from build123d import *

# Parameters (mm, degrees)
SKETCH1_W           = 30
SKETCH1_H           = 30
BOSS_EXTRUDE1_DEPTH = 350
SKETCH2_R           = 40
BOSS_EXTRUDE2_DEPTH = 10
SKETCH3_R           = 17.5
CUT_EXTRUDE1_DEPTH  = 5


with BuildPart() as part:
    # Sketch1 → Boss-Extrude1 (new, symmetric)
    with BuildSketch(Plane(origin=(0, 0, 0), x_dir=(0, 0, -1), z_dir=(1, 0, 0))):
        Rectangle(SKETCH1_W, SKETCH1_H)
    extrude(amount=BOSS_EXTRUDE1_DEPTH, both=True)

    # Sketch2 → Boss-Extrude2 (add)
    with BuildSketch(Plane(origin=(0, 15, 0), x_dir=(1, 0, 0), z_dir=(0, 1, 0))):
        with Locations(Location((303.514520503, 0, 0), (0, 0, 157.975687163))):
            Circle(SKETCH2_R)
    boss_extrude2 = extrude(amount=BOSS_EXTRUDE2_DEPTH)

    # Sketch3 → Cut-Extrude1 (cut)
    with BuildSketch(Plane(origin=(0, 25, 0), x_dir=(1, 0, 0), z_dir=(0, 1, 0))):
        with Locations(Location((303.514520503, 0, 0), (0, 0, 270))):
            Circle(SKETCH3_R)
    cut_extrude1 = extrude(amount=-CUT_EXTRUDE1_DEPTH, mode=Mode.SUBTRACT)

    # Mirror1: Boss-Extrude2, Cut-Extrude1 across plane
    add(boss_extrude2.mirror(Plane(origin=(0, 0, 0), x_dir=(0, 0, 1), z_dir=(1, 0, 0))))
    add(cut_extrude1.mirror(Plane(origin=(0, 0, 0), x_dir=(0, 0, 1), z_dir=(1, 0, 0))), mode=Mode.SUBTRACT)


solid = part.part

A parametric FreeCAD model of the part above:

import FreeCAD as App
import Part
import Sketcher
Q = App.Units.Quantity

doc = App.newDocument("Part")
params = doc.addObject("Spreadsheet::Sheet", "Params")
for row, (alias, value) in enumerate([
    ("sketch1_width", "30 mm"),
    ("pad1_length", "700 mm"),
    ("sketch2_diameter", "80 mm"),
    ("pad2_length", "10 mm"),
    ("sketch3_diameter", "35 mm"),
    ("pocket1_length", "5 mm"),
], start=1):
    params.set(f"A{row}", alias)
    params.set(f"B{row}", "=" + value)
    params.setAlias(f"B{row}", alias)

body = doc.addObject("PartDesign::Body", "Body")

# Sketch on YZ plane
sketch1 = doc.addObject("Sketcher::SketchObject", "Sketch")
body.addObject(sketch1)
sketch1.AttachmentSupport = (doc.YZ_Plane, [""])
sketch1.MapMode = "FlatFace"
sketch1.addGeometry(Part.LineSegment(App.Vector(15, 15, 0), App.Vector(-15, 15, 0)), False)
sketch1.addGeometry(Part.LineSegment(App.Vector(-15, 15, 0), App.Vector(-15, -15, 0)), False)
sketch1.addGeometry(Part.LineSegment(App.Vector(-15, -15, 0), App.Vector(15, -15, 0)), False)
sketch1.addGeometry(Part.LineSegment(App.Vector(15, -15, 0), App.Vector(15, 15, 0)), False)
sketch1.addConstraint(Sketcher.Constraint("Coincident", 0, 2, 1, 1))
sketch1.addConstraint(Sketcher.Constraint("Coincident", 1, 2, 2, 1))
sketch1.addConstraint(Sketcher.Constraint("Coincident", 2, 2, 3, 1))
sketch1.addConstraint(Sketcher.Constraint("Coincident", 3, 2, 0, 1))
sketch1.addConstraint(Sketcher.Constraint("Horizontal", 0))
sketch1.addConstraint(Sketcher.Constraint("Vertical", 1))
sketch1.addConstraint(Sketcher.Constraint("Horizontal", 2))
sketch1.addConstraint(Sketcher.Constraint("Vertical", 3))
sketch1.addConstraint(Sketcher.Constraint("Symmetric", 0, 2, 2, 2, -1, 1))
sketch1.addConstraint(Sketcher.Constraint("Equal", 2, 1))
sketch1.addConstraint(Sketcher.Constraint("DistanceX", 0, 2, 0, 1, Q("30 mm")))
sketch1.setExpression("Constraints[10]", "Params.sketch1_width")
pad1 = doc.addObject("PartDesign::Pad", "Pad")
body.addObject(pad1)
pad1.Profile = sketch1
pad1.setExpression("Length", "Params.pad1_length")
pad1.Midplane = True

# Sketch on XZ plane
sketch2 = doc.addObject("Sketcher::SketchObject", "Sketch001")
body.addObject(sketch2)
sketch2.AttachmentSupport = (doc.XZ_Plane, [""])
sketch2.MapMode = "FlatFace"
sketch2.AttachmentOffset = App.Placement(App.Vector(0, 0, -15), App.Rotation())
sketch2.addGeometry(Part.Circle(App.Vector(304, 0, 0), App.Vector(0, 0, 1), 40), False)
sketch2.addConstraint(Sketcher.Constraint("PointOnObject", 0, 3, -1))
sketch2.addConstraint(Sketcher.Constraint("Diameter", 0, Q("80 mm")))
sketch2.addConstraint(Sketcher.Constraint("DistanceX", -1, 1, 0, 3, Q("303.514521 mm")))
sketch2.setExpression("Constraints[1]", "Params.sketch2_diameter")
pad2 = doc.addObject("PartDesign::Pad", "Pad001")
body.addObject(pad2)
pad2.Profile = sketch2
pad2.setExpression("Length", "Params.pad2_length")
pad2.Reversed = True

# Sketch on XZ plane
sketch3 = doc.addObject("Sketcher::SketchObject", "Sketch002")
body.addObject(sketch3)
sketch3.AttachmentSupport = (doc.XZ_Plane, [""])
sketch3.MapMode = "FlatFace"
sketch3.AttachmentOffset = App.Placement(App.Vector(0, 0, -25), App.Rotation())
sketch3.addGeometry(Part.Circle(App.Vector(304, 0, 0), App.Vector(0, 0, 1), 18), False)
sketch3.addConstraint(Sketcher.Constraint("PointOnObject", 0, 3, -1))
sketch3.addConstraint(Sketcher.Constraint("Diameter", 0, Q("35 mm")))
sketch3.addConstraint(Sketcher.Constraint("DistanceX", -1, 1, 0, 3, Q("303.514521 mm")))
sketch3.setExpression("Constraints[1]", "Params.sketch3_diameter")
pocket1 = doc.addObject("PartDesign::Pocket", "Pocket")
body.addObject(pocket1)
pocket1.Profile = sketch3
pocket1.setExpression("Length", "Params.pocket1_length")
pocket1.Reversed = True
doc.recompute()

mirrored = doc.addObject("PartDesign::Mirrored", "Mirrored")
body.addObject(mirrored)
mirrored.Originals = [pad2, pocket1]
mirrored.MirrorPlane = (doc.YZ_Plane, [""])
body.Tip = mirrored

doc.recompute()
